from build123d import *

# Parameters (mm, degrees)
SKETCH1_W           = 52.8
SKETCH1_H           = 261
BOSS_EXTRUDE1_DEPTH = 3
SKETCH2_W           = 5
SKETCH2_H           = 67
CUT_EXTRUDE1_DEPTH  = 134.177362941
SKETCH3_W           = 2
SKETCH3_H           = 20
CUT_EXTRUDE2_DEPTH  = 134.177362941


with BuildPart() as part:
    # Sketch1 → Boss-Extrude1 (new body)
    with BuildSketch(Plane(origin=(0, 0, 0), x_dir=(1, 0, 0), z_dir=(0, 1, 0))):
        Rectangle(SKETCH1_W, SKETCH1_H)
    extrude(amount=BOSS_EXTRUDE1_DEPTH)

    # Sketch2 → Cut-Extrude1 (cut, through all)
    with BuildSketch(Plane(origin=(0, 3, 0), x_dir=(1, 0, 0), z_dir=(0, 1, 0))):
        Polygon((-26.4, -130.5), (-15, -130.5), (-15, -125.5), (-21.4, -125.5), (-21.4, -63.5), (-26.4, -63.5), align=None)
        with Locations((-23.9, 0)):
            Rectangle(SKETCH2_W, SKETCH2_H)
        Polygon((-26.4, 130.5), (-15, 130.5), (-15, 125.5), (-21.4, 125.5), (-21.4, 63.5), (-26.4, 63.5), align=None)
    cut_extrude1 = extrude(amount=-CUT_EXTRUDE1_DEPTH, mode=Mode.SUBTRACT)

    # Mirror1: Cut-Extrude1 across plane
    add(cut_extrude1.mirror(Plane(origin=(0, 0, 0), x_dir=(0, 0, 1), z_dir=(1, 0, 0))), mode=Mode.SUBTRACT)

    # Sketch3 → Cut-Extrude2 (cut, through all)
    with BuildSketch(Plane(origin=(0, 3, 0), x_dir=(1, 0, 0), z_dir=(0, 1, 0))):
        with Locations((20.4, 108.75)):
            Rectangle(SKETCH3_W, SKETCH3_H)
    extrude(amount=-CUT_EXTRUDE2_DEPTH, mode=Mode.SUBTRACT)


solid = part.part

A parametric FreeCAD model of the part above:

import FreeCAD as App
import Part
import Sketcher
Q = App.Units.Quantity

doc = App.newDocument("Part")
body = doc.addObject("PartDesign::Body", "Body")

# Sketch on XZ plane
sketch1 = body.newObject("Sketcher::SketchObject", "Sketch")
sketch1.AttachmentSupport = (doc.getObject("XZ_Plane"), [""])
sketch1.MapMode = "FlatFace"
sketch1.addGeometry([
    Part.LineSegment(App.Vector(-26, -130, 0), App.Vector(-26, 130, 0)),
    Part.LineSegment(App.Vector(-26, 130, 0), App.Vector(26, 130, 0)),
    Part.LineSegment(App.Vector(26, 130, 0), App.Vector(26, -130, 0)),
    Part.LineSegment(App.Vector(26, -130, 0), App.Vector(-26, -130, 0)),
], False)
sketch1.addConstraint([
    Sketcher.Constraint("Coincident", 0, 2, 1, 1),
    Sketcher.Constraint("Coincident", 1, 2, 2, 1),
    Sketcher.Constraint("Coincident", 2, 2, 3, 1),
    Sketcher.Constraint("Coincident", 3, 2, 0, 1),
    Sketcher.Constraint("Vertical", 0),
    Sketcher.Constraint("Horizontal", 1),
    Sketcher.Constraint("Vertical", 2),
    Sketcher.Constraint("Horizontal", 3),
    Sketcher.Constraint("Symmetric", 0, 2, 2, 2, -1, 1),
    Sketcher.Constraint("DistanceY", 0, 1, 0, 2, Q("261 mm")),
    Sketcher.Constraint("DistanceX", 1, 1, 1, 2, Q("52.8 mm")),
])
pad1 = body.newObject("PartDesign::Pad", "Pad")
pad1.Profile = sketch1
pad1.Length = 3
pad1.Reversed = True

# Sketch on XZ plane
sketch2 = body.newObject("Sketcher::SketchObject", "Sketch001")
sketch2.AttachmentSupport = (doc.getObject("XZ_Plane"), [""])
sketch2.MapMode = "FlatFace"
sketch2.AttachmentOffset = App.Placement(App.Vector(0, 0, -3), App.Rotation())
sketch2.addGeometry([
    Part.LineSegment(App.Vector(-26, 130, 0), App.Vector(-15, 130, 0)),  # 0
    Part.LineSegment(App.Vector(-15, 130, 0), App.Vector(-15, 126, 0)),  # 1
    Part.LineSegment(App.Vector(-15, 126, 0), App.Vector(-21, 126, 0)),  # 2
    Part.LineSegment(App.Vector(-21, 126, 0), App.Vector(-21, 64, 0)),  # 3
    Part.LineSegment(App.Vector(-21, 64, 0), App.Vector(-26, 64, 0)),  # 4
    Part.LineSegment(App.Vector(-26, 64, 0), App.Vector(-26, 130, 0)),  # 5
    Part.LineSegment(App.Vector(-26, -34, 0), App.Vector(-26, 34, 0)),  # 6
    Part.LineSegment(App.Vector(-26, 34, 0), App.Vector(-21, 34, 0)),  # 7
    Part.LineSegment(App.Vector(-21, 34, 0), App.Vector(-21, -34, 0)),  # 8
    Part.LineSegment(App.Vector(-21, -34, 0), App.Vector(-26, -34, 0)),  # 9
    Part.LineSegment(App.Vector(-15, -130, 0), App.Vector(-26, -130, 0)),  # 10
    Part.LineSegment(App.Vector(-26, -130, 0), App.Vector(-26, -64, 0)),  # 11
    Part.LineSegment(App.Vector(-26, -64, 0), App.Vector(-21, -64, 0)),  # 12
    Part.LineSegment(App.Vector(-21, -64, 0), App.Vector(-21, -126, 0)),  # 13
    Part.LineSegment(App.Vector(-21, -126, 0), App.Vector(-15, -126, 0)),  # 14
    Part.LineSegment(App.Vector(-15, -126, 0), App.Vector(-15, -130, 0)),  # 15
], False)
sketch2.addConstraint([
    Sketcher.Constraint("Coincident", 0, 2, 1, 1),
    Sketcher.Constraint("Coincident", 1, 2, 2, 1),
    Sketcher.Constraint("Coincident", 2, 2, 3, 1),
    Sketcher.Constraint("Coincident", 3, 2, 4, 1),
    Sketcher.Constraint("Coincident", 4, 2, 5, 1),
    Sketcher.Constraint("Coincident", 5, 2, 0, 1),
    Sketcher.Constraint("Coincident", 6, 2, 7, 1),
    Sketcher.Constraint("Coincident", 7, 2, 8, 1),
    Sketcher.Constraint("Coincident", 8, 2, 9, 1),
    Sketcher.Constraint("Coincident", 9, 2, 6, 1),
    Sketcher.Constraint("Coincident", 10, 2, 11, 1),
    Sketcher.Constraint("Coincident", 11, 2, 12, 1),
    Sketcher.Constraint("Coincident", 12, 2, 13, 1),
    Sketcher.Constraint("Coincident", 13, 2, 14, 1),
    Sketcher.Constraint("Coincident", 14, 2, 15, 1),
    Sketcher.Constraint("Coincident", 15, 2, 10, 1),
    Sketcher.Constraint("Horizontal", 0),
    Sketcher.Constraint("Vertical", 1),
    Sketcher.Constraint("Horizontal", 2),
    Sketcher.Constraint("Vertical", 3),
    Sketcher.Constraint("Horizontal", 4),
    Sketcher.Constraint("Vertical", 5),
    Sketcher.Constraint("Vertical", 6),
    Sketcher.Constraint("Horizontal", 7),
    Sketcher.Constraint("Vertical", 8),
    Sketcher.Constraint("Horizontal", 9),
    Sketcher.Constraint("Horizontal", 10),
    Sketcher.Constraint("Vertical", 11),
    Sketcher.Constraint("Horizontal", 12),
    Sketcher.Constraint("Vertical", 13),
    Sketcher.Constraint("Horizontal", 14),
    Sketcher.Constraint("Vertical", 15),
    Sketcher.Constraint("Symmetric", 5, 2, 10, 2, -1),
    Sketcher.Constraint("Symmetric", 3, 2, 12, 2, -1),
    Sketcher.Constraint("Symmetric", 1, 2, 14, 2, -1),
    Sketcher.Constraint("Vertical", 5, 2, 6, 2),
    Sketcher.Constraint("Vertical", 3, 2, 7, 2),
    Sketcher.Constraint("Equal", 12, 1),
    Sketcher.Constraint("Equal", 5, 6),
    Sketcher.Constraint("DistanceX", 4, 2, 4, 1, Q("5 mm")),
    Sketcher.Constraint("DistanceY", 3, 2, 3, 1, Q("62 mm")),
    Sketcher.Constraint("DistanceX", 0, 1, 0, 2, Q("11.4 mm")),
    Sketcher.Constraint("DistanceX", 0, 2, -1, 1, Q("15 mm")),
    Sketcher.Constraint("DistanceY", 6, 2, 4, 2, Q("30 mm")),
    Sketcher.Constraint("DistanceY", 10, 2, 9, 2, Q("97 mm")),
])
pocket1 = body.newObject("PartDesign::Pocket", "Pocket")
pocket1.Profile = sketch2
pocket1.Type = "ThroughAll"
pocket1.Reversed = True
doc.recompute()

mirrored = body.newObject("PartDesign::Mirrored", "Mirrored")
mirrored.Originals = [pocket1]
mirrored.MirrorPlane = (doc.getObject("YZ_Plane"), [""])
body.Tip = mirrored

# Sketch on XZ plane
sketch3 = body.newObject("Sketcher::SketchObject", "Sketch002")
sketch3.AttachmentSupport = (doc.getObject("XZ_Plane"), [""])
sketch3.MapMode = "FlatFace"
sketch3.AttachmentOffset = App.Placement(App.Vector(0, 0, -3), App.Rotation())
sketch3.addGeometry([
    Part.LineSegment(App.Vector(19.4, -118.8, 0), App.Vector(19.4, -98.8, 0)),
    Part.LineSegment(App.Vector(19.4, -98.8, 0), App.Vector(21.4, -98.8, 0)),
    Part.LineSegment(App.Vector(21.4, -98.8, 0), App.Vector(21.4, -118.8, 0)),
    Part.LineSegment(App.Vector(21.4, -118.8, 0), App.Vector(19.4, -118.8, 0)),
], False)
sketch3.addConstraint([
    Sketcher.Constraint("Coincident", 0, 2, 1, 1),
    Sketcher.Constraint("Coincident", 1, 2, 2, 1),
    Sketcher.Constraint("Coincident", 2, 2, 3, 1),
    Sketcher.Constraint("Coincident", 3, 2, 0, 1),
    Sketcher.Constraint("Vertical", 0),
    Sketcher.Constraint("Horizontal", 1),
    Sketcher.Constraint("Vertical", 2),
    Sketcher.Constraint("Horizontal", 3),
    Sketcher.Constraint("DistanceX", 1, 1, 1, 2, Q("2 mm")),
    Sketcher.Constraint("DistanceY", 0, 1, 0, 2, Q("20 mm")),
    Sketcher.Constraint("DistanceX", -1, 1, 0, 2, Q("19.4 mm")),
    Sketcher.Constraint("DistanceY", 0, 2, -1, 1, Q("98.75 mm")),
])
pocket2 = body.newObject("PartDesign::Pocket", "Pocket001")
pocket2.Profile = sketch3
pocket2.Type = "ThroughAll"
pocket2.Reversed = True

doc.recompute()
